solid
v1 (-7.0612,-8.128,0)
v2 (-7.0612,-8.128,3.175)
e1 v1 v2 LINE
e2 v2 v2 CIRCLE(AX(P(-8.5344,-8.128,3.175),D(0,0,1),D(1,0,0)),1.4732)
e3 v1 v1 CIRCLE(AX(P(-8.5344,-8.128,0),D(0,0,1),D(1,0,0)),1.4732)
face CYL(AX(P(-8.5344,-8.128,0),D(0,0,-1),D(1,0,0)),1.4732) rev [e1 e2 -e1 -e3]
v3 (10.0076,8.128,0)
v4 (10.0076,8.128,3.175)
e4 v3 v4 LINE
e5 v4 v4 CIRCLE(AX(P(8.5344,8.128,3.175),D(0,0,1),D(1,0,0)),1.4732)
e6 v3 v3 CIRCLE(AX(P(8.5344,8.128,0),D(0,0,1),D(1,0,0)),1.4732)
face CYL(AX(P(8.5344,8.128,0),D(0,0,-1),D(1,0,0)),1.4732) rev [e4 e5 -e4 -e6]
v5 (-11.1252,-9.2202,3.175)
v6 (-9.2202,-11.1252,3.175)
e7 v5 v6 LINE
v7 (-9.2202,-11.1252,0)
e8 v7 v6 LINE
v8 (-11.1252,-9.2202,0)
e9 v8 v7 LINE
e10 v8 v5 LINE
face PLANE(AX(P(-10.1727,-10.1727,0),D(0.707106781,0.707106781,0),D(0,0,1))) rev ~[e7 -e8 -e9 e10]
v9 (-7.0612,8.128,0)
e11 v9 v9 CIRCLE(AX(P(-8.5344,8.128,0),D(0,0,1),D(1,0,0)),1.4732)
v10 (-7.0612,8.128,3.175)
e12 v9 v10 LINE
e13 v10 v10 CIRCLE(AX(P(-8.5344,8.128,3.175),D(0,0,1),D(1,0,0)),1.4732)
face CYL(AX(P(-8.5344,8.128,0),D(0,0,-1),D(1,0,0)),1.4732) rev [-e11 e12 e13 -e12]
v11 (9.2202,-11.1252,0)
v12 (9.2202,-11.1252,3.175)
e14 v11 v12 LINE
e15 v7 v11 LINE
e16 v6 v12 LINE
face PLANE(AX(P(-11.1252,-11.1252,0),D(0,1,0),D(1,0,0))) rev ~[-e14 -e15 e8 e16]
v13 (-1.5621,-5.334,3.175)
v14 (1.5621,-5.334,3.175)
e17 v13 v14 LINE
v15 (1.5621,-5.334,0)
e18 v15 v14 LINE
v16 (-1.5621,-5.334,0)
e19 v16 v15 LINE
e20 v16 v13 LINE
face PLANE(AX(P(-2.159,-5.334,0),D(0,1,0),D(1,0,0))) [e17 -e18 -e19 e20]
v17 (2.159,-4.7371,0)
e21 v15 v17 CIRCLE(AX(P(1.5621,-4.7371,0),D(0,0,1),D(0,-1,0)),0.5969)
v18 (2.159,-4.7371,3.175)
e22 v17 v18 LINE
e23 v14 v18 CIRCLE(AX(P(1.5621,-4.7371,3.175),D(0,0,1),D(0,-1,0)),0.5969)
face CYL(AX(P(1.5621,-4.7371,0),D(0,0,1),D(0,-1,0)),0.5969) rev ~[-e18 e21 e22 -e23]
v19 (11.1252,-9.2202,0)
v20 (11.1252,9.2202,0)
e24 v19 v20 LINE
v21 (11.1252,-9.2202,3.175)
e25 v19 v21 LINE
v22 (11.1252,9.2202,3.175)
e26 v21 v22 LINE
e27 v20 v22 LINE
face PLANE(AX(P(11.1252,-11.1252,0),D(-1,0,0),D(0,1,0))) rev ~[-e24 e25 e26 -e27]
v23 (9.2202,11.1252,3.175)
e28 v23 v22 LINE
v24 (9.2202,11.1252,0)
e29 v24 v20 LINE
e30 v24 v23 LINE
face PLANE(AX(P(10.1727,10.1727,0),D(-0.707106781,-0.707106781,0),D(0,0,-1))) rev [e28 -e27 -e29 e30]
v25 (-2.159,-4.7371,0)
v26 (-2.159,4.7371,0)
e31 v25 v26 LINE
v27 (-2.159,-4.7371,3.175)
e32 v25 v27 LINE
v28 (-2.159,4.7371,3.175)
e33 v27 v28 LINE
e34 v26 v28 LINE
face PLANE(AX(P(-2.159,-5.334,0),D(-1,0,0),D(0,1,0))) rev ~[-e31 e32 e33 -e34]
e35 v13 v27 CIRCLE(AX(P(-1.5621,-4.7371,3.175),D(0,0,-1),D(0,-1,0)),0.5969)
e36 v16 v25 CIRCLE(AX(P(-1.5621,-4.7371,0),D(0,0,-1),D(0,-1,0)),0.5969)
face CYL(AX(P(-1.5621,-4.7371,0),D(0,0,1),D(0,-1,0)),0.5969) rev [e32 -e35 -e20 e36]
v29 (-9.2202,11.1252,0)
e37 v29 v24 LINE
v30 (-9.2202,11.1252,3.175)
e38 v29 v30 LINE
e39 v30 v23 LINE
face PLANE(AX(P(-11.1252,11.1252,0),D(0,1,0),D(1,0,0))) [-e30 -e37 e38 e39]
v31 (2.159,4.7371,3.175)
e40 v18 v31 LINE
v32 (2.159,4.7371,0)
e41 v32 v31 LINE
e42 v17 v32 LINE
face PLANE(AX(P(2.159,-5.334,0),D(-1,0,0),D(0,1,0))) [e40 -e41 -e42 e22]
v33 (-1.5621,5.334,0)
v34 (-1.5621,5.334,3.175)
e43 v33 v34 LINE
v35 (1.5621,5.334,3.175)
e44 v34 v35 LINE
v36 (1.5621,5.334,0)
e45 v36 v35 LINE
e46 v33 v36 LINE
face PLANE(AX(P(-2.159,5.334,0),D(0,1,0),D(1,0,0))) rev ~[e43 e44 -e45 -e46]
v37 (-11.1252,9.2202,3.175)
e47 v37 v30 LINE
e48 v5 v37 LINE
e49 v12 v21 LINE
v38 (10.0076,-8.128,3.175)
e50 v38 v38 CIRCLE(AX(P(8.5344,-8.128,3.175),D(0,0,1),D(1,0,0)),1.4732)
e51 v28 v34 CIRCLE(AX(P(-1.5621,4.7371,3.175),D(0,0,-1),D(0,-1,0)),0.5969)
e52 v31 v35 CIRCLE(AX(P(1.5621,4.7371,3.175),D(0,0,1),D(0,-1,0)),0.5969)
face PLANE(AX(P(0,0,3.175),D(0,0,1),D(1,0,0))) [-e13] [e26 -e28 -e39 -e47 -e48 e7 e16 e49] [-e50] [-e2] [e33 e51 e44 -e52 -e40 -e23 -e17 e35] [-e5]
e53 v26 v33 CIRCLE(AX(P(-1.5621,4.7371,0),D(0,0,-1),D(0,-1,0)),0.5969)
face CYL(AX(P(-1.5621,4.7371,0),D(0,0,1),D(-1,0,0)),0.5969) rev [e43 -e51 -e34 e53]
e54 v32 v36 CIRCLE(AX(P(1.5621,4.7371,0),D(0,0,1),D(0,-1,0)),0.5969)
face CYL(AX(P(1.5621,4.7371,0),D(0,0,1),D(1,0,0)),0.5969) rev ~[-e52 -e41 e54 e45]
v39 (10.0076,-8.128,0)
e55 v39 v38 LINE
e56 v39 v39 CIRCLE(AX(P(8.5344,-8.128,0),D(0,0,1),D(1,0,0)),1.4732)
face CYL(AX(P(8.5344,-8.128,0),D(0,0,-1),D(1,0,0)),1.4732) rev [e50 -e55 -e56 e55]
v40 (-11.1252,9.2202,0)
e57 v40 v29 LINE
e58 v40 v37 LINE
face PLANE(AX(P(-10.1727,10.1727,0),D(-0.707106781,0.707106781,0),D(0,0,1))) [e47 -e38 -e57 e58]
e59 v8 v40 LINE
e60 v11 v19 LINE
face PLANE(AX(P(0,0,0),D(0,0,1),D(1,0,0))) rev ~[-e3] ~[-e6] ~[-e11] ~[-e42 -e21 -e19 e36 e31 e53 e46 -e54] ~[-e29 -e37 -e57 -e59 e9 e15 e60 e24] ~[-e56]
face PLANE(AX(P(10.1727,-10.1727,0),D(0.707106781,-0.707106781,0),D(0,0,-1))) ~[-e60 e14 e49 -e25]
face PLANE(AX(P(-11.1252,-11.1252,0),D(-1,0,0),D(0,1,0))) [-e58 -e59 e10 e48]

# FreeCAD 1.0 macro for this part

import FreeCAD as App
import Part
import Sketcher
Q = App.Units.Quantity


def edges_at(feature, points):
    """Names of the edges that pass closest to the given points."""
    edges = feature.Shape.Edges
    near = lambda p: min(range(len(edges)), key=lambda i: edges[i].distToShape(Part.Vertex(*p))[0])
    return sorted({f"Edge{near(p) + 1}" for p in points})

doc = App.newDocument("Part")
params = doc.addObject("Spreadsheet::Sheet", "Params")
for row, (alias, value) in enumerate([
    ("sketch1_diameter", "0.116 in"),
    ("sketch1_width", "0.17 in"),
    ("sketch1_height", "0.42 in"),
    ("sketch1_width2", "0.876 in"),
    ("pad1_length", "0.125 in"),
    ("chamfer_size", "0.075 in"),
    ("fillet_radius", "0.0235 in"),
], start=1):
    params.set(f"A{row}", alias)
    params.set(f"B{row}", "=" + value)
    params.setAlias(f"B{row}", alias)

body = doc.addObject("PartDesign::Body", "Body")

# Sketch on XY plane
sketch1 = doc.addObject("Sketcher::SketchObject", "Sketch")
body.addObject(sketch1)
sketch1.AttachmentSupport = (doc.XY_Plane, [""])
sketch1.MapMode = "FlatFace"
sketch1.addGeometry([
    Part.LineSegment(App.Vector(-11.1252, 11.1252, 0), App.Vector(-11.1252, -11.1252, 0)),  # 0
    Part.LineSegment(App.Vector(-11.1252, -11.1252, 0), App.Vector(11.1252, -11.1252, 0)),  # 1
    Part.LineSegment(App.Vector(11.1252, -11.1252, 0), App.Vector(11.1252, 11.1252, 0)),  # 2
    Part.LineSegment(App.Vector(11.1252, 11.1252, 0), App.Vector(-11.1252, 11.1252, 0)),  # 3
    Part.Circle(App.Vector(-8.5344, -8.128, 0), App.Vector(0, 0, 1), 1.4732),  # 4
    Part.LineSegment(App.Vector(2.159, -5.334, 0), App.Vector(-2.159, -5.334, 0)),  # 5
    Part.LineSegment(App.Vector(-2.159, -5.334, 0), App.Vector(-2.159, 5.334, 0)),  # 6
    Part.LineSegment(App.Vector(-2.159, 5.334, 0), App.Vector(2.159, 5.334, 0)),  # 7
    Part.LineSegment(App.Vector(2.159, 5.334, 0), App.Vector(2.159, -5.334, 0)),  # 8
    Part.Circle(App.Vector(8.5344, -8.128, 0), App.Vector(0, 0, 1), 1.4732),  # 9
    Part.Circle(App.Vector(-8.5344, 8.128, 0), App.Vector(0, 0, 1), 1.4732),  # 10
    Part.Circle(App.Vector(8.5344, 8.128, 0), App.Vector(0, 0, 1), 1.4732),  # 11
], False)
sketch1.addConstraint([
    Sketcher.Constraint("Coincident", 0, 2, 1, 1),
    Sketcher.Constraint("Coincident", 1, 2, 2, 1),
    Sketcher.Constraint("Coincident", 2, 2, 3, 1),
    Sketcher.Constraint("Coincident", 3, 2, 0, 1),
    Sketcher.Constraint("Coincident", 5, 2, 6, 1),
    Sketcher.Constraint("Coincident", 6, 2, 7, 1),
    Sketcher.Constraint("Coincident", 7, 2, 8, 1),
    Sketcher.Constraint("Coincident", 8, 2, 5, 1),
    Sketcher.Constraint("Vertical", 0),
    Sketcher.Constraint("Horizontal", 1),
    Sketcher.Constraint("Vertical", 2),
    Sketcher.Constraint("Horizontal", 3),
    Sketcher.Constraint("Horizontal", 5),
    Sketcher.Constraint("Vertical", 6),
    Sketcher.Constraint("Horizontal", 7),
    Sketcher.Constraint("Vertical", 8),
    Sketcher.Constraint("Equal", 4, 9),
    Sketcher.Constraint("Equal", 9, 10),
    Sketcher.Constraint("Equal", 10, 11),
    Sketcher.Constraint("Symmetric", 9, 3, 10, 3, -1, 1),
    Sketcher.Constraint("Symmetric", 4, 3, 11, 3, -1, 1),
    Sketcher.Constraint("Symmetric", 0, 2, 2, 2, -1, 1),
    Sketcher.Constraint("Symmetric", 5, 2, 7, 2, -1, 1),
    Sketcher.Constraint("Symmetric", 4, 3, 9, 3, -2),
    Sketcher.Constraint("Equal", 3, 0),
    Sketcher.Constraint("Diameter", 4, Q("0.116 in")),
    Sketcher.Constraint("DistanceX", 5, 2, 5, 1, Q("0.17 in")),
    Sketcher.Constraint("DistanceY", 6, 1, 6, 2, Q("0.42 in")),
    Sketcher.Constraint("DistanceX", 1, 1, 1, 2, Q("0.876 in")),
    Sketcher.Constraint("DistanceY", 4, 3, -1, 1, Q("0.32 in")),
    Sketcher.Constraint("DistanceX", 4, 3, -1, 1, Q("0.336 in")),
])
sketch1.setExpression("Constraints[25]", "Params.sketch1_diameter")
sketch1.setExpression("Constraints[26]", "Params.sketch1_width")
sketch1.setExpression("Constraints[27]", "Params.sketch1_height")
sketch1.setExpression("Constraints[28]", "Params.sketch1_width2")
pad1 = doc.addObject("PartDesign::Pad", "Pad")
body.addObject(pad1)
pad1.Profile = sketch1
pad1.setExpression("Length", "Params.pad1_length")
doc.recompute()

chamfer = doc.addObject("PartDesign::Chamfer", "Chamfer")
body.addObject(chamfer)
chamfer.Base = (pad1, edges_at(pad1, [
    (-11.125, -11.125, 1.587),
    (-11.125, 11.125, 1.587),
    (11.125, 11.125, 1.587),
    (11.125, -11.125, 1.587),
]))
chamfer.setExpression("Size", "Params.chamfer_size")
doc.recompute()

fillet = doc.addObject("PartDesign::Fillet", "Fillet")
body.addObject(fillet)
fillet.Base = (chamfer, edges_at(chamfer, [
    (2.159, -5.334, 1.587),
    (-2.159, -5.334, 1.587),
    (-2.159, 5.334, 1.587),
    (2.159, 5.334, 1.587),
]))
fillet.setExpression("Radius", "Params.fillet_radius")

doc.recompute()
